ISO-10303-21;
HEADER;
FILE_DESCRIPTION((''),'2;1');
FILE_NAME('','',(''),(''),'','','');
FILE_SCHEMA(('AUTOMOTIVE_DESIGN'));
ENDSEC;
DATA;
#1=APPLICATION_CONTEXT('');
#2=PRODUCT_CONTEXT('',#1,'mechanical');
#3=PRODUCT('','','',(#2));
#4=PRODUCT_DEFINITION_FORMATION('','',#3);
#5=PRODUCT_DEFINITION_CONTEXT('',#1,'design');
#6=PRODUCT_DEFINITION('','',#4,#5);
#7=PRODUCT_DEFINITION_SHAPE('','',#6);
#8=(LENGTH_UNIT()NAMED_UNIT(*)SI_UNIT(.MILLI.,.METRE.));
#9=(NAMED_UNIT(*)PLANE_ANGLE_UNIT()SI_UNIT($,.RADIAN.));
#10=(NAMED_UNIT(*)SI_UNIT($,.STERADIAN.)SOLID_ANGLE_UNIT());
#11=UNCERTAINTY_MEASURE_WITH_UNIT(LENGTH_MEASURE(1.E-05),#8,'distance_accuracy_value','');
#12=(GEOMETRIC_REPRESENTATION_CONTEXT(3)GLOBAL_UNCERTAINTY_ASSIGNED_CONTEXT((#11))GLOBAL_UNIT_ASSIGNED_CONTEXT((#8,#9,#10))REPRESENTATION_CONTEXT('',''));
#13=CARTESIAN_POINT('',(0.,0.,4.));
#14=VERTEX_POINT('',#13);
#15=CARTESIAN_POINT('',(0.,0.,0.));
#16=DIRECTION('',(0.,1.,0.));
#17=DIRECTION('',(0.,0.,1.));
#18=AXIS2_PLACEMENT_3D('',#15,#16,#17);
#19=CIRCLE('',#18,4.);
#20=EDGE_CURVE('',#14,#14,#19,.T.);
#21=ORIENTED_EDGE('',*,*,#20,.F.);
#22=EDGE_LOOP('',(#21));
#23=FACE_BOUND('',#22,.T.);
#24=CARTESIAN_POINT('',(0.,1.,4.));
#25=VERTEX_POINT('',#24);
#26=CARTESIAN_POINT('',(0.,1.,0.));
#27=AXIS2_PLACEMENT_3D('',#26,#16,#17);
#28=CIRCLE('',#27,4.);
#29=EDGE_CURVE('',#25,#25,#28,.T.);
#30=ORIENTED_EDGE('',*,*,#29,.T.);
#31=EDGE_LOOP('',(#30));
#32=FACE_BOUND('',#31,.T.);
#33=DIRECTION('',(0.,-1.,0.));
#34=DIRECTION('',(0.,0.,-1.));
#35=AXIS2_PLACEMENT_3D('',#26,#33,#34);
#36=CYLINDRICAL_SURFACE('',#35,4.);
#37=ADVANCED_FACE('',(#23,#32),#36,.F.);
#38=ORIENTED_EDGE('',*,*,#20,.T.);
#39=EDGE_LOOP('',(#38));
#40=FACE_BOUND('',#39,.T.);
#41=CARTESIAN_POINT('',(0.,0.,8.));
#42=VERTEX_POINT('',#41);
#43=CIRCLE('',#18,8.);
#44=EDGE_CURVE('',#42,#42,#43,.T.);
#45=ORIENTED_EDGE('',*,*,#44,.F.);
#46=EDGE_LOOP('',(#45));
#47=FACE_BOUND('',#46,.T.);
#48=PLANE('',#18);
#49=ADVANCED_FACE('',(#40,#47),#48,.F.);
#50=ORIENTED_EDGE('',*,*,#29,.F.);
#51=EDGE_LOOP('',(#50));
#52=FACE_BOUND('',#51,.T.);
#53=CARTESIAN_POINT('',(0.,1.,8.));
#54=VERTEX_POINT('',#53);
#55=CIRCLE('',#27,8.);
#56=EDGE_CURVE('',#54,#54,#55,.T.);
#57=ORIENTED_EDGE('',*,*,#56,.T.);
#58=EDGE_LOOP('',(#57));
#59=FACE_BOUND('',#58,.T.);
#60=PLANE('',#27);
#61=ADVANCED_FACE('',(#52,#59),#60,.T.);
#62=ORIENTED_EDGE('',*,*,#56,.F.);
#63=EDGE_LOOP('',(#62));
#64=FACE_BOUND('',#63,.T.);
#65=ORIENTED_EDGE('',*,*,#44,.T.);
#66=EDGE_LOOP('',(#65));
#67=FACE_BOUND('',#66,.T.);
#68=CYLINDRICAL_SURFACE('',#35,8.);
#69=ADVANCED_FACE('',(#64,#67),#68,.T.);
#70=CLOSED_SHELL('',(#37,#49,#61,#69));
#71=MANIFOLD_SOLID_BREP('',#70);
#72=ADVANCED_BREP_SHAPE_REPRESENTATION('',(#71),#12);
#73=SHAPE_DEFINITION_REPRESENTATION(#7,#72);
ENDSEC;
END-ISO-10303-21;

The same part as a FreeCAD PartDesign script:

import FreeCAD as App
import Part
import Sketcher

doc = App.newDocument("Part")
body = doc.addObject("PartDesign::Body", "Body")

# Sketch on XZ plane
sketch1 = doc.addObject("Sketcher::SketchObject", "Sketch")
body.addObject(sketch1)
sketch1.AttachmentSupport = (doc.XZ_Plane, [""])
sketch1.MapMode = "FlatFace"
sketch1.addGeometry(Part.Circle(App.Vector(0, 0, 0), App.Vector(0, 0, 1), 8), False)
sketch1.addGeometry(Part.Circle(App.Vector(0, 0, 0), App.Vector(0, 0, 1), 4), False)
sketch1.addConstraint(Sketcher.Constraint("Coincident", 0, 3, -1, 1))
sketch1.addConstraint(Sketcher.Constraint("Coincident", 1, 3, -1, 1))
sketch1.addConstraint(Sketcher.Constraint("Diameter", 0, 16.0))
sketch1.addConstraint(Sketcher.Constraint("Diameter", 1, 8.0))
pad1 = doc.addObject("PartDesign::Pad", "Pad")
body.addObject(pad1)
pad1.Profile = sketch1
pad1.Length = 1
pad1.Reversed = True

doc.recompute()
